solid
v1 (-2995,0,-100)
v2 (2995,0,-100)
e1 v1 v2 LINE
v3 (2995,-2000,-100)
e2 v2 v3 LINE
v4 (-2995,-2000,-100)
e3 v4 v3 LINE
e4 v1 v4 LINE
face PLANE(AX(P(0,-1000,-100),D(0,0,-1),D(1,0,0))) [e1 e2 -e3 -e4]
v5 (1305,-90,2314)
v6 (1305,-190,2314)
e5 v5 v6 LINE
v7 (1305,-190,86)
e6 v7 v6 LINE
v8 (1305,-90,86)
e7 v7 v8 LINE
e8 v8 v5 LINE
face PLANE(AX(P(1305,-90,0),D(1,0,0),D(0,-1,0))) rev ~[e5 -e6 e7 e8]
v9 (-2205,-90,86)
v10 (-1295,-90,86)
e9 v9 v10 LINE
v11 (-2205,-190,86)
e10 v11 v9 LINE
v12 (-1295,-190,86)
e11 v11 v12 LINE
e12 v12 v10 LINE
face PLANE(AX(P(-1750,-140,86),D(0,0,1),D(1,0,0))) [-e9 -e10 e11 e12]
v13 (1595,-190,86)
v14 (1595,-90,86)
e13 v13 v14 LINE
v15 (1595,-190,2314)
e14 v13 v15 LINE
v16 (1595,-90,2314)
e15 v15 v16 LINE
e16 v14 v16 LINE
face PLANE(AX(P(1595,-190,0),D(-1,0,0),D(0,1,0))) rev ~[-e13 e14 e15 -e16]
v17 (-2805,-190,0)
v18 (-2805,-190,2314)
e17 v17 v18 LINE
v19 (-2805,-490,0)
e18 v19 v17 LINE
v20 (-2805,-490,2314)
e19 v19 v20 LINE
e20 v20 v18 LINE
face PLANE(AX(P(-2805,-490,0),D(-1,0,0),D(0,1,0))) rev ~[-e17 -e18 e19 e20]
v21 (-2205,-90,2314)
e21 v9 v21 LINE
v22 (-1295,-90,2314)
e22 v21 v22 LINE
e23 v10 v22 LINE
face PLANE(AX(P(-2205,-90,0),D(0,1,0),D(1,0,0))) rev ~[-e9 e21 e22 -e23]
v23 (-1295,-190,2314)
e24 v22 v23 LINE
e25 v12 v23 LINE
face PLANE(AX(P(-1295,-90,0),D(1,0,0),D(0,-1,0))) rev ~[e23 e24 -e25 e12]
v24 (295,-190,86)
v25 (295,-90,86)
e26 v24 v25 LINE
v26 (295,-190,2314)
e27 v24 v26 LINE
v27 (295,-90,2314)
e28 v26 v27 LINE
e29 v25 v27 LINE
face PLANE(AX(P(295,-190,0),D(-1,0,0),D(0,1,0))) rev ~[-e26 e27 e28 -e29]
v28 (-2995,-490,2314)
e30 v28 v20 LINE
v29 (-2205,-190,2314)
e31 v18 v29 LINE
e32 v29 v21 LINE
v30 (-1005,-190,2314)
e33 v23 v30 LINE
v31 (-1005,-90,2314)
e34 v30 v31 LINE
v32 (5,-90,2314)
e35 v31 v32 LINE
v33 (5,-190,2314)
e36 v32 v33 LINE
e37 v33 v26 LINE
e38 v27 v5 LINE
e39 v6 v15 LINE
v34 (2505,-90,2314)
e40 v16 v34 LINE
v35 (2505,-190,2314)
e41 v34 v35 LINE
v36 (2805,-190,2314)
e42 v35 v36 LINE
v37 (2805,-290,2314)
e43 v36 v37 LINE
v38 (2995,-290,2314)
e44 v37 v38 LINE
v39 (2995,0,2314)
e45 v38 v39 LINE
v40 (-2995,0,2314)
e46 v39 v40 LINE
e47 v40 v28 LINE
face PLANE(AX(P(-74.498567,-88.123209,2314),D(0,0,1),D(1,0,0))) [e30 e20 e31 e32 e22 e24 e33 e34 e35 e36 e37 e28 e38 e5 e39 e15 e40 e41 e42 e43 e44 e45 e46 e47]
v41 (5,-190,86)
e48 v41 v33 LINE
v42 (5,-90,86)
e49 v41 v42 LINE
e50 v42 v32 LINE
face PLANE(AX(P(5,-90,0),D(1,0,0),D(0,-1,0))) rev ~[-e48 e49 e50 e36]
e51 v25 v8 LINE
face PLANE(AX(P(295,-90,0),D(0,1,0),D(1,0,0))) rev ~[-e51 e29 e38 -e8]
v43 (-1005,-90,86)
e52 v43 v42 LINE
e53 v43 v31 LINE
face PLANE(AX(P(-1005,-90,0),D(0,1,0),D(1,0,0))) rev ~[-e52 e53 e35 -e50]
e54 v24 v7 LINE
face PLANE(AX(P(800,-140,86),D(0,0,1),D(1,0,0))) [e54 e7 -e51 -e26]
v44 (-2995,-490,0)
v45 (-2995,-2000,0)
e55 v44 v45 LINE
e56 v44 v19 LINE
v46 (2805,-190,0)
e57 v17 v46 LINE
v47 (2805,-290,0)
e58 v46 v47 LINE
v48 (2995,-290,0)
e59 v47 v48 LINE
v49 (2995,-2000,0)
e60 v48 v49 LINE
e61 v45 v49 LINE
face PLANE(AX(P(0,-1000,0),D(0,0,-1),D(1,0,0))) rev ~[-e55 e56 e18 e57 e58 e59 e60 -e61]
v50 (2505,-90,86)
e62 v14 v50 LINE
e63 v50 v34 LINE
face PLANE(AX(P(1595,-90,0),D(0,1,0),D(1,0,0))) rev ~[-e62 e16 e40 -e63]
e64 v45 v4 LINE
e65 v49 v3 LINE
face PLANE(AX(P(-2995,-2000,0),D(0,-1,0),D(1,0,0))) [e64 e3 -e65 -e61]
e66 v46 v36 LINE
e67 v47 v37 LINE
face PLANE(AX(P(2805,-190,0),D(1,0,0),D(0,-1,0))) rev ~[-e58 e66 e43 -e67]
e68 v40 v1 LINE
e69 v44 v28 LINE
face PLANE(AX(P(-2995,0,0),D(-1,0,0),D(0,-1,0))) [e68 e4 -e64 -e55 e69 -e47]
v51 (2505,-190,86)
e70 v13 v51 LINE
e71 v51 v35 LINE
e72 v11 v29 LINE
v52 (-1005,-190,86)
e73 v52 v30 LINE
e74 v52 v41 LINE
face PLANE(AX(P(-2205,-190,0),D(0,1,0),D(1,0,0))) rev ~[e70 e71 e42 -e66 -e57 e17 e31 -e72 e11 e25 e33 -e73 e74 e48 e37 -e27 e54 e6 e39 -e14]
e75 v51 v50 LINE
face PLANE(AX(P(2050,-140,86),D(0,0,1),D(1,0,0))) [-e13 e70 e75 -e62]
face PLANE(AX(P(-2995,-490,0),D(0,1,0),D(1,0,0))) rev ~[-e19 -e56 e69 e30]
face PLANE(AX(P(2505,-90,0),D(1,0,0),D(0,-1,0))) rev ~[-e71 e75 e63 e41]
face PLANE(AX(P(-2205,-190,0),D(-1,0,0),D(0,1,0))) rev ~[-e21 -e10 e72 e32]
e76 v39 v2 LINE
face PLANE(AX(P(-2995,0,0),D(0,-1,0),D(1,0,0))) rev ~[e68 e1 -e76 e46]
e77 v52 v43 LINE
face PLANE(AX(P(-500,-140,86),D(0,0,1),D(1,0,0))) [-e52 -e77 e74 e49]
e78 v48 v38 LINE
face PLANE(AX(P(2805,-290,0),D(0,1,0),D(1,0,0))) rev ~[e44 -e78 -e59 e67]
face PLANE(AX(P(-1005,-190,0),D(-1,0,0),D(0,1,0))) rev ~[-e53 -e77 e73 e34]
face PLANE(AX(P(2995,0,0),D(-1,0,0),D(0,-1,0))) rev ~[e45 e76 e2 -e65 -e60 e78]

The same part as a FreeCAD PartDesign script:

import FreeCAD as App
import Part
import Sketcher
from FreeCAD import Vector


def add_polygon(sketch, points):
    """Adds a closed chain of lines whose ends are joined by coincident constraints."""
    first, n = sketch.GeometryCount, len(points)
    for a, b in zip(points, points[1:] + points[:1]):
        sketch.addGeometry(Part.LineSegment(App.Vector(*a, 0), App.Vector(*b, 0)), False)
    for i in range(n):
        sketch.addConstraint(Sketcher.Constraint("Coincident", first + i, 2, first + (i + 1) % n, 1))

doc = App.newDocument("Part")
body = doc.addObject("PartDesign::Body", "Body")

sketch1 = body.newObject("Sketcher::SketchObject", "Sketch")
sketch1.AttachmentSupport = (doc.getObject("XY_Plane"), [""])
sketch1.MapMode = "FlatFace"
add_polygon(sketch1, [(2995, -290), (2995, 0), (-2995, 0), (-2995, -490), (-2805, -490), (-2805, -190), (-2205, -190), (-2205, -90), (-1295, -90), (-1295, -190), (-1005, -190), (-1005, -90), (5, -90), (5, -190), (295, -190), (295, -90), (1305, -90), (1305, -190), (1595, -190), (1595, -90), (2505, -90), (2505, -190), (2805, -190), (2805, -290)])
sketch1.addConstraint([
    Sketcher.Constraint("Vertical", 0),
    Sketcher.Constraint("Horizontal", 1),
    Sketcher.Constraint("Vertical", 2),
    Sketcher.Constraint("Horizontal", 3),
    Sketcher.Constraint("Vertical", 4),
    Sketcher.Constraint("Horizontal", 5),
    Sketcher.Constraint("Vertical", 6),
    Sketcher.Constraint("Horizontal", 7),
    Sketcher.Constraint("Vertical", 8),
    Sketcher.Constraint("Horizontal", 9),
    Sketcher.Constraint("Vertical", 10),
    Sketcher.Constraint("Horizontal", 11),
    Sketcher.Constraint("Vertical", 12),
    Sketcher.Constraint("Horizontal", 13),
    Sketcher.Constraint("Vertical", 14),
    Sketcher.Constraint("Horizontal", 15),
    Sketcher.Constraint("Vertical", 16),
    Sketcher.Constraint("Horizontal", 17),
    Sketcher.Constraint("Vertical", 18),
    Sketcher.Constraint("Horizontal", 19),
    Sketcher.Constraint("Vertical", 20),
    Sketcher.Constraint("Horizontal", 21),
    Sketcher.Constraint("Vertical", 22),
    Sketcher.Constraint("Horizontal", 23),
    Sketcher.Constraint("Symmetric", 0, 2, 1, 2, -1, 1),
    Sketcher.Constraint("Symmetric", 4, 2, 21, 2, -2),
    Sketcher.Constraint("Horizontal", 5, 2, 8, 2),
    Sketcher.Constraint("Horizontal", 7, 2, 10, 2),
    Sketcher.Constraint("Horizontal", 9, 2, 12, 2),
    Sketcher.Constraint("Horizontal", 11, 2, 14, 2),
    Sketcher.Constraint("Horizontal", 13, 2, 16, 2),
    Sketcher.Constraint("Horizontal", 15, 2, 18, 2),
    Sketcher.Constraint("Equal", 9, 13),
    Sketcher.Constraint("Equal", 11, 15),
    Sketcher.Constraint("Equal", 13, 17),
    Sketcher.Constraint("Equal", 7, 19),
    Sketcher.Constraint("Equal", 17, 0),
    Sketcher.Constraint("Equal", 21, 4),
    Sketcher.Constraint("Equal", 20, 22),
    Sketcher.Constraint("DistanceX", 1, 2, 1, 1, 5990.0),
    Sketcher.Constraint("DistanceX", 3, 1, 3, 2, 190.0),
    Sketcher.Constraint("DistanceX", 5, 1, 5, 2, 600.0),
    Sketcher.Constraint("DistanceX", 7, 1, 7, 2, 910.0),
    Sketcher.Constraint("DistanceX", 9, 1, 9, 2, 290.0),
    Sketcher.Constraint("DistanceX", 11, 1, 11, 2, 1010.0),
    Sketcher.Constraint("DistanceY", 2, 2, 2, 1, 490.0),
])
pad1 = body.newObject("PartDesign::Pad", "Pad")
pad1.Profile = sketch1
pad1.Length = 2314

sketch2 = body.newObject("Sketcher::SketchObject", "Sketch001")
sketch2.AttachmentSupport = (doc.getObject("XY_Plane"), [""])
sketch2.MapMode = "FlatFace"
add_polygon(sketch2, [(-2995, -2000), (-2995, 0), (2995, 0), (2995, -2000)])
sketch2.addConstraint([
    Sketcher.Constraint("Vertical", 0),
    Sketcher.Constraint("Horizontal", 1),
    Sketcher.Constraint("Vertical", 2),
    Sketcher.Constraint("Horizontal", 3),
    Sketcher.Constraint("Symmetric", 0, 2, 1, 2, -1, 1),
    Sketcher.Constraint("DistanceX", 1, 1, 1, 2, 5990.0),
    Sketcher.Constraint("DistanceY", 0, 1, 0, 2, 2000.0),
])
pad2 = body.newObject("PartDesign::Pad", "Pad001")
pad2.Profile = sketch2
pad2.Length = 100
pad2.Reversed = True

sketch3 = body.newObject("Sketcher::SketchObject", "Sketch002")
sketch3.AttachmentSupport = (doc.getObject("XY_Plane"), [""])
sketch3.MapMode = "FlatFace"
add_polygon(sketch3, [(-2205, -90), (-2205, -190), (-1295, -190), (-1295, -90)])
add_polygon(sketch3, [(-1005, -90), (-1005, -190), (5, -190), (5, -90)])
add_polygon(sketch3, [(295, -90), (295, -190), (1305, -190), (1305, -90)])
add_polygon(sketch3, [(1595, -90), (1595, -190), (2505, -190), (2505, -90)])
sketch3.addConstraint([
    Sketcher.Constraint("Vertical", 0),
    Sketcher.Constraint("Horizontal", 1),
    Sketcher.Constraint("Vertical", 2),
    Sketcher.Constraint("Horizontal", 3),
    Sketcher.Constraint("Vertical", 4),
    Sketcher.Constraint("Horizontal", 5),
    Sketcher.Constraint("Vertical", 6),
    Sketcher.Constraint("Horizontal", 7),
    Sketcher.Constraint("Vertical", 8),
    Sketcher.Constraint("Horizontal", 9),
    Sketcher.Constraint("Vertical", 10),
    Sketcher.Constraint("Horizontal", 11),
    Sketcher.Constraint("Vertical", 12),
    Sketcher.Constraint("Horizontal", 13),
    Sketcher.Constraint("Vertical", 14),
    Sketcher.Constraint("Horizontal", 15),
    Sketcher.Constraint("Horizontal", 1, 2, 4, 2),
    Sketcher.Constraint("Horizontal", 3, 2, 6, 2),
    Sketcher.Constraint("Horizontal", 5, 2, 8, 2),
    Sketcher.Constraint("Horizontal", 7, 2, 10, 2),
    Sketcher.Constraint("Horizontal", 9, 2, 12, 2),
    Sketcher.Constraint("Horizontal", 11, 2, 14, 2),
    Sketcher.Constraint("Equal", 7, 9),
    Sketcher.Constraint("Equal", 3, 13),
    Sketcher.Constraint("DistanceX", 1, 1, 1, 2, 910.0),
    Sketcher.Constraint("DistanceX", 5, 1, 5, 2, 1010.0),
    Sketcher.Constraint("DistanceY", 0, 2, 0, 1, 100.0),
    Sketcher.Constraint("DistanceX", 0, 2, -1, 1, 2205.0),
    Sketcher.Constraint("DistanceY", 0, 2, -1, 1, 190.0),
    Sketcher.Constraint("DistanceX", 4, 2, -1, 1, 1005.0),
    Sketcher.Constraint("DistanceX", -1, 1, 8, 2, 295.0),
    Sketcher.Constraint("DistanceX", -1, 1, 12, 2, 1595.0),
])
pad3 = body.newObject("PartDesign::Pad", "Pad002")
pad3.Profile = sketch3
pad3.Length = 86

doc.recompute()
